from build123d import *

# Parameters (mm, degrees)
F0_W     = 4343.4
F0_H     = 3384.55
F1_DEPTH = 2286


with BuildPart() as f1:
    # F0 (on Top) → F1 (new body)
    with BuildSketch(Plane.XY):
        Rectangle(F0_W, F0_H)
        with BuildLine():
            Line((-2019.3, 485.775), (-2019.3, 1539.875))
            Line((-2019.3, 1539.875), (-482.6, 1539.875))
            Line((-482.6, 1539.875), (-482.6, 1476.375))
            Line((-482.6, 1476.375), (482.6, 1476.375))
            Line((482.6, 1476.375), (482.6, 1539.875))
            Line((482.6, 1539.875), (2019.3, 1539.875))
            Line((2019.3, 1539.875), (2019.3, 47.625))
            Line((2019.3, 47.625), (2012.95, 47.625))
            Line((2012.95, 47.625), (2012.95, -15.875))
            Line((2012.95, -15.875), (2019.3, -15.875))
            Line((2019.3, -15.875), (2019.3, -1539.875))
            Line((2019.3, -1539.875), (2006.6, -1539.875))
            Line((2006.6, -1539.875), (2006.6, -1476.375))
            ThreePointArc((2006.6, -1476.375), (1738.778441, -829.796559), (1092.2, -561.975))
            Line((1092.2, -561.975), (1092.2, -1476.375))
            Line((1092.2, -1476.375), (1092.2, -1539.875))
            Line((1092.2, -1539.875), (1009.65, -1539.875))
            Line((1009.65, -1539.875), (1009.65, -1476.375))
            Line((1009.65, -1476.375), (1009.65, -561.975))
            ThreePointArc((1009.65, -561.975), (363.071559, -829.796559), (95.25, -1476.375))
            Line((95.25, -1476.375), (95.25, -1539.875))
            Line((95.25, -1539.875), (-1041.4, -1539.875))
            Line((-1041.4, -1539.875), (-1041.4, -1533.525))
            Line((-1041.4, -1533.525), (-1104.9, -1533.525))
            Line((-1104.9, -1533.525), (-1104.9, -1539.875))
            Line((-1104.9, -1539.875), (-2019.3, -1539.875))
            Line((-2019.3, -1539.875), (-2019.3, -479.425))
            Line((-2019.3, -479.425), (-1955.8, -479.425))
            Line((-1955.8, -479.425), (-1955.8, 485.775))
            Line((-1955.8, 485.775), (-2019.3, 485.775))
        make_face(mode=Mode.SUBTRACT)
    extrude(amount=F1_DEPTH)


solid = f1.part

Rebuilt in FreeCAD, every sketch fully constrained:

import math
import FreeCAD as App
import Part
import Sketcher
Q = App.Units.Quantity


def add_polygon(sketch, points):
    """Adds a closed chain of lines whose ends are joined by coincident constraints."""
    first, n = sketch.GeometryCount, len(points)
    for a, b in zip(points, points[1:] + points[:1]):
        sketch.addGeometry(Part.LineSegment(App.Vector(*a, 0), App.Vector(*b, 0)), False)
    for i in range(n):
        sketch.addConstraint(Sketcher.Constraint("Coincident", first + i, 2, first + (i + 1) % n, 1))

doc = App.newDocument("Part")
params = doc.addObject("Spreadsheet::Sheet", "Params")
for row, (alias, value) in enumerate([
    ("sketch1_radius", "36 in"),
    ("sketch1_width", "171 in"),
    ("sketch1_width2", "38 in"),
    ("sketch1_width3", "36 in"),
    ("sketch1_height", "60 in"),
    ("pad1_length", "90 in"),
], start=1):
    params.set(f"A{row}", alias)
    params.set(f"B{row}", "=" + value)
    params.setAlias(f"B{row}", alias)

body = doc.addObject("PartDesign::Body", "Body")

# Sketch on XY plane
sketch1 = body.newObject("Sketcher::SketchObject", "Sketch")
sketch1.AttachmentSupport = (doc.getObject("XY_Plane"), [""])
sketch1.MapMode = "FlatFace"
add_polygon(sketch1, [(-2172, 1692), (-2172, -1692), (2172, -1692), (2172, 1692)])  # lines 0-3
sketch1.addGeometry(Part.LineSegment(App.Vector(-1956, 486, 0), App.Vector(-2019, 486, 0)), False)  # 4
sketch1.addGeometry(Part.LineSegment(App.Vector(-2019, 486, 0), App.Vector(-2019, 1540, 0)), False)  # 5
sketch1.addGeometry(Part.LineSegment(App.Vector(-2019, 1540, 0), App.Vector(-483, 1540, 0)), False)  # 6
sketch1.addGeometry(Part.LineSegment(App.Vector(-483, 1540, 0), App.Vector(-483, 1476, 0)), False)  # 7
sketch1.addGeometry(Part.LineSegment(App.Vector(-483, 1476, 0), App.Vector(483, 1476, 0)), False)  # 8
sketch1.addGeometry(Part.LineSegment(App.Vector(483, 1476, 0), App.Vector(483, 1540, 0)), False)  # 9
sketch1.addGeometry(Part.LineSegment(App.Vector(483, 1540, 0), App.Vector(2019, 1540, 0)), False)  # 10
sketch1.addGeometry(Part.LineSegment(App.Vector(2019, 1540, 0), App.Vector(2019, 48, 0)), False)  # 11
sketch1.addGeometry(Part.LineSegment(App.Vector(2019, 48, 0), App.Vector(2013, 48, 0)), False)  # 12
sketch1.addGeometry(Part.LineSegment(App.Vector(2013, 48, 0), App.Vector(2013, -16, 0)), False)  # 13
sketch1.addGeometry(Part.LineSegment(App.Vector(2013, -16, 0), App.Vector(2019, -16, 0)), False)  # 14
sketch1.addGeometry(Part.LineSegment(App.Vector(2019, -16, 0), App.Vector(2019, -1540, 0)), False)  # 15
sketch1.addGeometry(Part.LineSegment(App.Vector(2019, -1540, 0), App.Vector(2007, -1540, 0)), False)  # 16
sketch1.addGeometry(Part.LineSegment(App.Vector(2007, -1540, 0), App.Vector(2007, -1476, 0)), False)  # 17
sketch1.addGeometry(Part.ArcOfCircle(Part.Circle(App.Vector(1092, -1476, 0), App.Vector(0, 0, 1), 914), math.radians(0), math.radians(90)), False)  # 18
sketch1.addGeometry(Part.LineSegment(App.Vector(1092, -562, 0), App.Vector(1092, -1540, 0)), False)  # 19
sketch1.addGeometry(Part.LineSegment(App.Vector(1092, -1540, 0), App.Vector(1010, -1540, 0)), False)  # 20
sketch1.addGeometry(Part.LineSegment(App.Vector(1010, -1540, 0), App.Vector(1010, -562, 0)), False)  # 21
sketch1.addGeometry(Part.ArcOfCircle(Part.Circle(App.Vector(1010, -1476, 0), App.Vector(0, 0, 1), 914), math.radians(90), math.radians(180)), False)  # 22
sketch1.addGeometry(Part.LineSegment(App.Vector(95, -1476, 0), App.Vector(95, -1540, 0)), False)  # 23
sketch1.addGeometry(Part.LineSegment(App.Vector(95, -1540, 0), App.Vector(-1041, -1540, 0)), False)  # 24
sketch1.addGeometry(Part.LineSegment(App.Vector(-1041, -1540, 0), App.Vector(-1041, -1534, 0)), False)  # 25
sketch1.addGeometry(Part.LineSegment(App.Vector(-1041, -1534, 0), App.Vector(-1105, -1534, 0)), False)  # 26
sketch1.addGeometry(Part.LineSegment(App.Vector(-1105, -1534, 0), App.Vector(-1105, -1540, 0)), False)  # 27
sketch1.addGeometry(Part.LineSegment(App.Vector(-1105, -1540, 0), App.Vector(-2019, -1540, 0)), False)  # 28
sketch1.addGeometry(Part.LineSegment(App.Vector(-2019, -1540, 0), App.Vector(-2019, -479, 0)), False)  # 29
sketch1.addGeometry(Part.LineSegment(App.Vector(-2019, -479, 0), App.Vector(-1956, -479, 0)), False)  # 30
sketch1.addGeometry(Part.LineSegment(App.Vector(-1956, -479, 0), App.Vector(-1956, 486, 0)), False)  # 31
sketch1.addConstraint(Sketcher.Constraint("Coincident", 4, 2, 5, 1))
sketch1.addConstraint(Sketcher.Constraint("Coincident", 5, 2, 6, 1))
sketch1.addConstraint(Sketcher.Constraint("Coincident", 6, 2, 7, 1))
sketch1.addConstraint(Sketcher.Constraint("Coincident", 7, 2, 8, 1))
sketch1.addConstraint(Sketcher.Constraint("Coincident", 8, 2, 9, 1))
sketch1.addConstraint(Sketcher.Constraint("Coincident", 9, 2, 10, 1))
sketch1.addConstraint(Sketcher.Constraint("Coincident", 10, 2, 11, 1))
sketch1.addConstraint(Sketcher.Constraint("Coincident", 11, 2, 12, 1))
sketch1.addConstraint(Sketcher.Constraint("Coincident", 12, 2, 13, 1))
sketch1.addConstraint(Sketcher.Constraint("Coincident", 13, 2, 14, 1))
sketch1.addConstraint(Sketcher.Constraint("Coincident", 14, 2, 15, 1))
sketch1.addConstraint(Sketcher.Constraint("Coincident", 15, 2, 16, 1))
sketch1.addConstraint(Sketcher.Constraint("Coincident", 16, 2, 17, 1))
sketch1.addConstraint(Sketcher.Constraint("Tangent", 17, 2, 18, 1))
sketch1.addConstraint(Sketcher.Constraint("Coincident", 18, 2, 19, 1))
sketch1.addConstraint(Sketcher.Constraint("Coincident", 19, 2, 20, 1))
sketch1.addConstraint(Sketcher.Constraint("Coincident", 20, 2, 21, 1))
sketch1.addConstraint(Sketcher.Constraint("Coincident", 21, 2, 22, 1))
sketch1.addConstraint(Sketcher.Constraint("Tangent", 22, 2, 23, 1))
sketch1.addConstraint(Sketcher.Constraint("Coincident", 23, 2, 24, 1))
sketch1.addConstraint(Sketcher.Constraint("Coincident", 24, 2, 25, 1))
sketch1.addConstraint(Sketcher.Constraint("Coincident", 25, 2, 26, 1))
sketch1.addConstraint(Sketcher.Constraint("Coincident", 26, 2, 27, 1))
sketch1.addConstraint(Sketcher.Constraint("Coincident", 27, 2, 28, 1))
sketch1.addConstraint(Sketcher.Constraint("Coincident", 28, 2, 29, 1))
sketch1.addConstraint(Sketcher.Constraint("Coincident", 29, 2, 30, 1))
sketch1.addConstraint(Sketcher.Constraint("Coincident", 30, 2, 31, 1))
sketch1.addConstraint(Sketcher.Constraint("Coincident", 31, 2, 4, 1))
sketch1.addConstraint(Sketcher.Constraint("Vertical", 0))
sketch1.addConstraint(Sketcher.Constraint("Horizontal", 1))
sketch1.addConstraint(Sketcher.Constraint("Vertical", 2))
sketch1.addConstraint(Sketcher.Constraint("Horizontal", 3))
sketch1.addConstraint(Sketcher.Constraint("Horizontal", 4))
sketch1.addConstraint(Sketcher.Constraint("Vertical", 5))
sketch1.addConstraint(Sketcher.Constraint("Horizontal", 6))
sketch1.addConstraint(Sketcher.Constraint("Vertical", 7))
sketch1.addConstraint(Sketcher.Constraint("Horizontal", 8))
sketch1.addConstraint(Sketcher.Constraint("Vertical", 9))
sketch1.addConstraint(Sketcher.Constraint("Horizontal", 10))
sketch1.addConstraint(Sketcher.Constraint("Vertical", 11))
sketch1.addConstraint(Sketcher.Constraint("Horizontal", 12))
sketch1.addConstraint(Sketcher.Constraint("Vertical", 13))
sketch1.addConstraint(Sketcher.Constraint("Horizontal", 14))
sketch1.addConstraint(Sketcher.Constraint("Vertical", 15))
sketch1.addConstraint(Sketcher.Constraint("Horizontal", 16))
sketch1.addConstraint(Sketcher.Constraint("Vertical", 17))
sketch1.addConstraint(Sketcher.Constraint("Vertical", 19))
sketch1.addConstraint(Sketcher.Constraint("Horizontal", 20))
sketch1.addConstraint(Sketcher.Constraint("Vertical", 21))
sketch1.addConstraint(Sketcher.Constraint("Vertical", 23))
sketch1.addConstraint(Sketcher.Constraint("Horizontal", 24))
sketch1.addConstraint(Sketcher.Constraint("Vertical", 25))
sketch1.addConstraint(Sketcher.Constraint("Horizontal", 26))
sketch1.addConstraint(Sketcher.Constraint("Vertical", 27))
sketch1.addConstraint(Sketcher.Constraint("Horizontal", 28))
sketch1.addConstraint(Sketcher.Constraint("Vertical", 29))
sketch1.addConstraint(Sketcher.Constraint("Horizontal", 30))
sketch1.addConstraint(Sketcher.Constraint("Vertical", 31))
sketch1.addConstraint(Sketcher.Constraint("Equal", 18, 22))
sketch1.addConstraint(Sketcher.Constraint("Symmetric", 0, 2, 2, 2, -1, 1))
sketch1.addConstraint(Sketcher.Constraint("Symmetric", 5, 2, 15, 2, -1, 1))
sketch1.addConstraint(Sketcher.Constraint("Symmetric", 10, 2, 28, 2, -1, 1))
sketch1.addConstraint(Sketcher.Constraint("Symmetric", 6, 2, 9, 2, -2))
sketch1.addConstraint(Sketcher.Constraint("Horizontal", 18, 3, 22, 3))
sketch1.addConstraint(Sketcher.Constraint("Horizontal", 16, 2, 19, 2))
sketch1.addConstraint(Sketcher.Constraint("Horizontal", 20, 2, 23, 2))
sketch1.addConstraint(Sketcher.Constraint("Vertical", 11, 2, 14, 2))
sketch1.addConstraint(Sketcher.Constraint("Vertical", 22, 3, 20, 2))
sketch1.addConstraint(Sketcher.Constraint("Equal", 4, 26))
sketch1.addConstraint(Sketcher.Constraint("Equal", 30, 7))
sketch1.addConstraint(Sketcher.Constraint("Equal", 9, 13))
sketch1.addConstraint(Sketcher.Constraint("Equal", 13, 17))
sketch1.addConstraint(Sketcher.Constraint("Equal", 14, 25))
sketch1.addConstraint(Sketcher.Constraint("Equal", 8, 31))
sketch1.addConstraint(Sketcher.Constraint("Radius", 18, Q("36 in")))
sketch1.addConstraint(Sketcher.Constraint("DistanceX", 1, 1, 1, 2, Q("171 in")))
sketch1.addConstraint(Sketcher.Constraint("DistanceX", 8, 1, 8, 2, Q("38 in")))
sketch1.addConstraint(Sketcher.Constraint("DistanceX", 28, 2, 28, 1, Q("36 in")))
sketch1.addConstraint(Sketcher.Constraint("DistanceY", 15, 2, 15, 1, Q("60 in")))
sketch1.addConstraint(Sketcher.Constraint("DistanceX", 4, 2, 4, 1, Q("2.5 in")))
sketch1.addConstraint(Sketcher.Constraint("DistanceX", 6, 1, 6, 2, Q("60.5 in")))
sketch1.addConstraint(Sketcher.Constraint("DistanceX", 16, 2, 16, 1, Q("0.5 in")))
sketch1.addConstraint(Sketcher.Constraint("DistanceY", 5, 1, 5, 2, Q("41.5 in")))
sketch1.addConstraint(Sketcher.Constraint("DistanceX", -1, 1, 19, 2, Q("43 in")))
sketch1.addConstraint(Sketcher.Constraint("DistanceY", 5, 2, 3, 2, Q("6 in")))
sketch1.addConstraint(Sketcher.Constraint("DistanceX", 12, 2, 12, 1, Q("0.25 in")))
sketch1.addConstraint(Sketcher.Constraint("DistanceX", 20, 2, 20, 1, Q("3.25 in")))
sketch1.addConstraint(Sketcher.Constraint("DistanceY", 0, 2, 0, 1, Q("133.25 in")))
sketch1.setExpression("Constraints[78]", "Params.sketch1_radius")
sketch1.setExpression("Constraints[79]", "Params.sketch1_width")
sketch1.setExpression("Constraints[80]", "Params.sketch1_width2")
sketch1.setExpression("Constraints[81]", "Params.sketch1_width3")
sketch1.setExpression("Constraints[82]", "Params.sketch1_height")
pad1 = body.newObject("PartDesign::Pad", "Pad")
pad1.Profile = sketch1
pad1.setExpression("Length", "Params.pad1_length")

doc.recompute()
